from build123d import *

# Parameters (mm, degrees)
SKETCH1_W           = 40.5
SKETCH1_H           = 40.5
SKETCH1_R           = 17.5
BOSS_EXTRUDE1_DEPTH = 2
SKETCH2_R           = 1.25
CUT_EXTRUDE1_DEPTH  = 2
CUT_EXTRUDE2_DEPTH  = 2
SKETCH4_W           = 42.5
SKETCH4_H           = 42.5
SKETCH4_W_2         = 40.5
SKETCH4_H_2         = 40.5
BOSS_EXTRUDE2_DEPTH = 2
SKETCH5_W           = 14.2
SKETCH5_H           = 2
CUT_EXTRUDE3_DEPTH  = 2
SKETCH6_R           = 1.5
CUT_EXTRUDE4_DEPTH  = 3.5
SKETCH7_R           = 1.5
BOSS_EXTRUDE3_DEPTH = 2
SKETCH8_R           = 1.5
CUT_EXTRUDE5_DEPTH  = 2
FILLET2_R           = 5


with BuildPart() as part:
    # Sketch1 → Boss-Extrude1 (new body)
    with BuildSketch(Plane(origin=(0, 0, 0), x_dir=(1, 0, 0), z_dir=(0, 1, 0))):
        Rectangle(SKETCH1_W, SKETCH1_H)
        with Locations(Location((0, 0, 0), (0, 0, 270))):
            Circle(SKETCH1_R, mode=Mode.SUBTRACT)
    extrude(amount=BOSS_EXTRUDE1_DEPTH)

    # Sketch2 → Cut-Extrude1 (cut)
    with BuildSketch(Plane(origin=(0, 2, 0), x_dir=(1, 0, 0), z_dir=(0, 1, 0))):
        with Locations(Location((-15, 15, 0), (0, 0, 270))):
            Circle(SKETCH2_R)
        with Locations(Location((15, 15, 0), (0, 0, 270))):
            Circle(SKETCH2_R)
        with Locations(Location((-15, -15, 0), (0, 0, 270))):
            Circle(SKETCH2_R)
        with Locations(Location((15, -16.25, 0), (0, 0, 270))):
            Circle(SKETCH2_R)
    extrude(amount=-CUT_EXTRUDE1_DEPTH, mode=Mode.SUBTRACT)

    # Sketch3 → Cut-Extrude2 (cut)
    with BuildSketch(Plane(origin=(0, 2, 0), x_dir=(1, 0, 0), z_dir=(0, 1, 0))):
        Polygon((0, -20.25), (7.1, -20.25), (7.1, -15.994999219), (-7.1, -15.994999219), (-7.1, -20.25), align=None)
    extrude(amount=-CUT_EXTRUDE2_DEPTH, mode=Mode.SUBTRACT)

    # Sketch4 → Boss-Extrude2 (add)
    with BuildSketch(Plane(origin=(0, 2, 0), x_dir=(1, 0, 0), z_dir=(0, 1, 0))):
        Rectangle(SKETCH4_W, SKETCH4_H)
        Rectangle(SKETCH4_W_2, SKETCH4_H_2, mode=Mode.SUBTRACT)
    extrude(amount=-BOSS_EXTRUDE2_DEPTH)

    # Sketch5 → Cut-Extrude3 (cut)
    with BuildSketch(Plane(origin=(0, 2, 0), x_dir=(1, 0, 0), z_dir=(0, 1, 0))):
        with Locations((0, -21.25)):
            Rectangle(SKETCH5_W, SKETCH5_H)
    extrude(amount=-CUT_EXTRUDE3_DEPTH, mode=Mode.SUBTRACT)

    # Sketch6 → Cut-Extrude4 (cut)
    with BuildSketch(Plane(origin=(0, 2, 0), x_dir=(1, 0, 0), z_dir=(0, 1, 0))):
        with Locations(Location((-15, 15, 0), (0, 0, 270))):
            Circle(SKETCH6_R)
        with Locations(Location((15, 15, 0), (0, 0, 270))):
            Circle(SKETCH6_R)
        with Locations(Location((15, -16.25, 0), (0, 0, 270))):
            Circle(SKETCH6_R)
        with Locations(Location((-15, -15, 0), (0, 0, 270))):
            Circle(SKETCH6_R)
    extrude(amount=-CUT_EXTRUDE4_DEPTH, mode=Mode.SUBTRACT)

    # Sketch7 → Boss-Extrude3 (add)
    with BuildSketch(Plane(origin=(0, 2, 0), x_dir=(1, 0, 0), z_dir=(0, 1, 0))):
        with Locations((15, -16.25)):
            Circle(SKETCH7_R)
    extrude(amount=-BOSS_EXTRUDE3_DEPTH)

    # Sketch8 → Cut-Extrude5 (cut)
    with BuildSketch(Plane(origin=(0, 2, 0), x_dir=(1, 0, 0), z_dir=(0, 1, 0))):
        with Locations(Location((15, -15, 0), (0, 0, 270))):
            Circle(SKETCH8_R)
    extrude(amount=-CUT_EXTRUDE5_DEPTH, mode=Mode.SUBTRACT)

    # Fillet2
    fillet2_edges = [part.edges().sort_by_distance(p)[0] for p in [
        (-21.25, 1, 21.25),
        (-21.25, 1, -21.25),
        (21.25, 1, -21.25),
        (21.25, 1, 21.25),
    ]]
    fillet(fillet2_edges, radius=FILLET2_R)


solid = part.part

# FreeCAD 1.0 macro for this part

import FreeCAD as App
import Part
import Sketcher


def edges_at(feature, points):
    """Names of the edges that pass closest to the given points."""
    edges = feature.Shape.Edges
    near = lambda p: min(range(len(edges)), key=lambda i: edges[i].distToShape(Part.Vertex(*p))[0])
    return sorted({f"Edge{near(p) + 1}" for p in points})


def add_polygon(sketch, points):
    """Adds a closed chain of lines whose ends are joined by coincident constraints."""
    first, n = sketch.GeometryCount, len(points)
    for a, b in zip(points, points[1:] + points[:1]):
        sketch.addGeometry(Part.LineSegment(App.Vector(*a, 0), App.Vector(*b, 0)), False)
    for i in range(n):
        sketch.addConstraint(Sketcher.Constraint("Coincident", first + i, 2, first + (i + 1) % n, 1))

doc = App.newDocument("Part")
body = doc.addObject("PartDesign::Body", "Body")

sketch1 = doc.addObject("Sketcher::SketchObject", "Sketch")
body.addObject(sketch1)
sketch1.AttachmentSupport = (doc.XZ_Plane, [""])
sketch1.MapMode = "FlatFace"
add_polygon(sketch1, [(-20.25, -20.25), (-20.25, 20.25), (20.25, 20.25), (20.25, -20.25)])
sketch1.addGeometry(Part.Circle(App.Vector(0, 0, 0), App.Vector(0, 0, 1), 17.5), False)
sketch1.addConstraint(Sketcher.Constraint("Vertical", 0))
sketch1.addConstraint(Sketcher.Constraint("Horizontal", 1))
sketch1.addConstraint(Sketcher.Constraint("Vertical", 2))
sketch1.addConstraint(Sketcher.Constraint("Horizontal", 3))
sketch1.addConstraint(Sketcher.Constraint("Coincident", 4, 3, -1, 1))
sketch1.addConstraint(Sketcher.Constraint("Symmetric", 0, 2, 2, 2, -1, 1))
sketch1.addConstraint(Sketcher.Constraint("Equal", 3, 0))
sketch1.addConstraint(Sketcher.Constraint("Diameter", 4, 35.0))
sketch1.addConstraint(Sketcher.Constraint("DistanceX", 1, 1, 1, 2, 40.5))
pad1 = doc.addObject("PartDesign::Pad", "Pad")
body.addObject(pad1)
pad1.Profile = sketch1
pad1.Length = 2
pad1.Reversed = True

sketch2 = doc.addObject("Sketcher::SketchObject", "Sketch001")
body.addObject(sketch2)
sketch2.AttachmentSupport = (doc.XZ_Plane, [""])
sketch2.MapMode = "FlatFace"
sketch2.AttachmentOffset = App.Placement(App.Vector(0, 0, -2), App.Rotation())
sketch2.addGeometry(Part.Circle(App.Vector(-15, -15, 0), App.Vector(0, 0, 1), 1.25), False)
sketch2.addGeometry(Part.Circle(App.Vector(15, -15, 0), App.Vector(0, 0, 1), 1.25), False)
sketch2.addGeometry(Part.Circle(App.Vector(-15, 15, 0), App.Vector(0, 0, 1), 1.25), False)
sketch2.addGeometry(Part.Circle(App.Vector(15, 16.25, 0), App.Vector(0, 0, 1), 1.25), False)
sketch2.addConstraint(Sketcher.Constraint("Equal", 0, 1))
sketch2.addConstraint(Sketcher.Constraint("Equal", 1, 2))
sketch2.addConstraint(Sketcher.Constraint("Equal", 2, 3))
sketch2.addConstraint(Sketcher.Constraint("Symmetric", 1, 3, 2, 3, -1, 1))
sketch2.addConstraint(Sketcher.Constraint("Symmetric", 0, 3, 1, 3, -2))
sketch2.addConstraint(Sketcher.Constraint("Vertical", 1, 3, 3, 3))
sketch2.addConstraint(Sketcher.Constraint("Diameter", 0, 2.5))
sketch2.addConstraint(Sketcher.Constraint("DistanceX", 0, 3, -1, 1, 15.0))
sketch2.addConstraint(Sketcher.Constraint("DistanceY", 0, 3, -1, 1, 15.0))
sketch2.addConstraint(Sketcher.Constraint("DistanceY", -1, 1, 3, 3, 16.25))
pocket1 = doc.addObject("PartDesign::Pocket", "Pocket")
body.addObject(pocket1)
pocket1.Profile = sketch2
pocket1.Length = 2
pocket1.Reversed = True

sketch3 = doc.addObject("Sketcher::SketchObject", "Sketch002")
body.addObject(sketch3)
sketch3.AttachmentSupport = (doc.XZ_Plane, [""])
sketch3.MapMode = "FlatFace"
sketch3.AttachmentOffset = App.Placement(App.Vector(0, 0, -2), App.Rotation())
add_polygon(sketch3, [(7.1, 20.25), (7.1, 15.994999), (-7.1, 15.994999), (-7.1, 20.25)])
sketch3.addConstraint(Sketcher.Constraint("Vertical", 0))
sketch3.addConstraint(Sketcher.Constraint("Horizontal", 1))
sketch3.addConstraint(Sketcher.Constraint("Vertical", 2))
sketch3.addConstraint(Sketcher.Constraint("Horizontal", 3))
sketch3.addConstraint(Sketcher.Constraint("DistanceX", 1, 2, 1, 1, 14.2))
sketch3.addConstraint(Sketcher.Constraint("DistanceX", -1, 1, 0, 2, 7.1))
sketch3.addConstraint(Sketcher.Constraint("DistanceY", 0, 2, 0, 1, 4.255001))
sketch3.addConstraint(Sketcher.Constraint("DistanceY", -1, 1, 2, 2, 20.25))
pocket2 = doc.addObject("PartDesign::Pocket", "Pocket001")
body.addObject(pocket2)
pocket2.Profile = sketch3
pocket2.Length = 2
pocket2.Reversed = True

sketch4 = doc.addObject("Sketcher::SketchObject", "Sketch003")
body.addObject(sketch4)
sketch4.AttachmentSupport = (doc.XZ_Plane, [""])
sketch4.MapMode = "FlatFace"
sketch4.AttachmentOffset = App.Placement(App.Vector(0, 0, -2), App.Rotation())
add_polygon(sketch4, [(-21.25, -21.25), (-21.25, 21.25), (21.25, 21.25), (21.25, -21.25)])
add_polygon(sketch4, [(20.25, 20.25), (-20.25, 20.25), (-20.25, -20.25), (20.25, -20.25)])
sketch4.addConstraint(Sketcher.Constraint("Vertical", 0))
sketch4.addConstraint(Sketcher.Constraint("Horizontal", 1))
sketch4.addConstraint(Sketcher.Constraint("Vertical", 2))
sketch4.addConstraint(Sketcher.Constraint("Horizontal", 3))
sketch4.addConstraint(Sketcher.Constraint("Horizontal", 4))
sketch4.addConstraint(Sketcher.Constraint("Vertical", 5))
sketch4.addConstraint(Sketcher.Constraint("Horizontal", 6))
sketch4.addConstraint(Sketcher.Constraint("Vertical", 7))
sketch4.addConstraint(Sketcher.Constraint("Symmetric", 0, 2, 2, 2, -1, 1))
sketch4.addConstraint(Sketcher.Constraint("Symmetric", 4, 2, 6, 2, -1, 1))
sketch4.addConstraint(Sketcher.Constraint("Equal", 3, 0))
sketch4.addConstraint(Sketcher.Constraint("Equal", 6, 5))
sketch4.addConstraint(Sketcher.Constraint("DistanceX", 1, 1, 1, 2, 42.5))
sketch4.addConstraint(Sketcher.Constraint("DistanceX", 4, 2, 4, 1, 40.5))
pad2 = doc.addObject("PartDesign::Pad", "Pad001")
body.addObject(pad2)
pad2.Profile = sketch4
pad2.Length = 2

sketch5 = doc.addObject("Sketcher::SketchObject", "Sketch004")
body.addObject(sketch5)
sketch5.AttachmentSupport = (doc.XZ_Plane, [""])
sketch5.MapMode = "FlatFace"
sketch5.AttachmentOffset = App.Placement(App.Vector(0, 0, -2), App.Rotation())
add_polygon(sketch5, [(-7.1, 20.25), (-7.1, 22.25), (7.1, 22.25), (7.1, 20.25)])
sketch5.addConstraint(Sketcher.Constraint("Vertical", 0))
sketch5.addConstraint(Sketcher.Constraint("Horizontal", 1))
sketch5.addConstraint(Sketcher.Constraint("Vertical", 2))
sketch5.addConstraint(Sketcher.Constraint("Horizontal", 3))
sketch5.addConstraint(Sketcher.Constraint("DistanceY", 0, 1, 0, 2, 2.0))
sketch5.addConstraint(Sketcher.Constraint("DistanceX", 1, 1, 1, 2, 14.2))
sketch5.addConstraint(Sketcher.Constraint("DistanceX", 0, 2, -1, 1, 7.1))
sketch5.addConstraint(Sketcher.Constraint("DistanceY", -1, 1, 0, 2, 22.25))
pocket3 = doc.addObject("PartDesign::Pocket", "Pocket002")
body.addObject(pocket3)
pocket3.Profile = sketch5
pocket3.Length = 2
pocket3.Reversed = True

sketch6 = doc.addObject("Sketcher::SketchObject", "Sketch005")
body.addObject(sketch6)
sketch6.AttachmentSupport = (doc.XZ_Plane, [""])
sketch6.MapMode = "FlatFace"
sketch6.AttachmentOffset = App.Placement(App.Vector(0, 0, -2), App.Rotation())
sketch6.addGeometry(Part.Circle(App.Vector(-15, -15, 0), App.Vector(0, 0, 1), 1.5), False)
sketch6.addGeometry(Part.Circle(App.Vector(15, -15, 0), App.Vector(0, 0, 1), 1.5), False)
sketch6.addGeometry(Part.Circle(App.Vector(15, 16.25, 0), App.Vector(0, 0, 1), 1.5), False)
sketch6.addGeometry(Part.Circle(App.Vector(-15, 15, 0), App.Vector(0, 0, 1), 1.5), False)
sketch6.addConstraint(Sketcher.Constraint("Equal", 0, 1))
sketch6.addConstraint(Sketcher.Constraint("Equal", 1, 2))
sketch6.addConstraint(Sketcher.Constraint("Equal", 2, 3))
sketch6.addConstraint(Sketcher.Constraint("Symmetric", 1, 3, 3, 3, -1, 1))
sketch6.addConstraint(Sketcher.Constraint("Symmetric", 0, 3, 1, 3, -2))
sketch6.addConstraint(Sketcher.Constraint("Vertical", 1, 3, 2, 3))
sketch6.addConstraint(Sketcher.Constraint("Diameter", 0, 3.0))
sketch6.addConstraint(Sketcher.Constraint("DistanceX", 0, 3, -1, 1, 15.0))
sketch6.addConstraint(Sketcher.Constraint("DistanceY", 0, 3, -1, 1, 15.0))
sketch6.addConstraint(Sketcher.Constraint("DistanceY", -1, 1, 2, 3, 16.25))
pocket4 = doc.addObject("PartDesign::Pocket", "Pocket003")
body.addObject(pocket4)
pocket4.Profile = sketch6
pocket4.Length = 3.5
pocket4.Reversed = True

sketch7 = doc.addObject("Sketcher::SketchObject", "Sketch006")
body.addObject(sketch7)
sketch7.AttachmentSupport = (doc.XZ_Plane, [""])
sketch7.MapMode = "FlatFace"
sketch7.AttachmentOffset = App.Placement(App.Vector(0, 0, -2), App.Rotation())
sketch7.addGeometry(Part.Circle(App.Vector(15, 16.25, 0), App.Vector(0, 0, 1), 1.5), False)
sketch7.addConstraint(Sketcher.Constraint("Diameter", 0, 3.0))
sketch7.addConstraint(Sketcher.Constraint("DistanceX", -1, 1, 0, 3, 15.0))
sketch7.addConstraint(Sketcher.Constraint("DistanceY", -1, 1, 0, 3, 16.25))
pad3 = doc.addObject("PartDesign::Pad", "Pad002")
body.addObject(pad3)
pad3.Profile = sketch7
pad3.Length = 2

sketch8 = doc.addObject("Sketcher::SketchObject", "Sketch007")
body.addObject(sketch8)
sketch8.AttachmentSupport = (doc.XZ_Plane, [""])
sketch8.MapMode = "FlatFace"
sketch8.AttachmentOffset = App.Placement(App.Vector(0, 0, -2), App.Rotation())
sketch8.addGeometry(Part.Circle(App.Vector(15, 15, 0), App.Vector(0, 0, 1), 1.5), False)
sketch8.addConstraint(Sketcher.Constraint("Diameter", 0, 3.0))
sketch8.addConstraint(Sketcher.Constraint("DistanceX", -1, 1, 0, 3, 15.0))
sketch8.addConstraint(Sketcher.Constraint("DistanceY", -1, 1, 0, 3, 15.0))
pocket5 = doc.addObject("PartDesign::Pocket", "Pocket004")
body.addObject(pocket5)
pocket5.Profile = sketch8
pocket5.Length = 2
pocket5.Reversed = True
doc.recompute()

fillet = doc.addObject("PartDesign::Fillet", "Fillet")
body.addObject(fillet)
fillet.Base = (pocket5, edges_at(pocket5, [
    (-21.25, 1, 21.25),
    (-21.25, 1, -21.25),
    (21.25, 1, -21.25),
    (21.25, 1, 21.25),
]))
fillet.Radius = 5

doc.recompute()
